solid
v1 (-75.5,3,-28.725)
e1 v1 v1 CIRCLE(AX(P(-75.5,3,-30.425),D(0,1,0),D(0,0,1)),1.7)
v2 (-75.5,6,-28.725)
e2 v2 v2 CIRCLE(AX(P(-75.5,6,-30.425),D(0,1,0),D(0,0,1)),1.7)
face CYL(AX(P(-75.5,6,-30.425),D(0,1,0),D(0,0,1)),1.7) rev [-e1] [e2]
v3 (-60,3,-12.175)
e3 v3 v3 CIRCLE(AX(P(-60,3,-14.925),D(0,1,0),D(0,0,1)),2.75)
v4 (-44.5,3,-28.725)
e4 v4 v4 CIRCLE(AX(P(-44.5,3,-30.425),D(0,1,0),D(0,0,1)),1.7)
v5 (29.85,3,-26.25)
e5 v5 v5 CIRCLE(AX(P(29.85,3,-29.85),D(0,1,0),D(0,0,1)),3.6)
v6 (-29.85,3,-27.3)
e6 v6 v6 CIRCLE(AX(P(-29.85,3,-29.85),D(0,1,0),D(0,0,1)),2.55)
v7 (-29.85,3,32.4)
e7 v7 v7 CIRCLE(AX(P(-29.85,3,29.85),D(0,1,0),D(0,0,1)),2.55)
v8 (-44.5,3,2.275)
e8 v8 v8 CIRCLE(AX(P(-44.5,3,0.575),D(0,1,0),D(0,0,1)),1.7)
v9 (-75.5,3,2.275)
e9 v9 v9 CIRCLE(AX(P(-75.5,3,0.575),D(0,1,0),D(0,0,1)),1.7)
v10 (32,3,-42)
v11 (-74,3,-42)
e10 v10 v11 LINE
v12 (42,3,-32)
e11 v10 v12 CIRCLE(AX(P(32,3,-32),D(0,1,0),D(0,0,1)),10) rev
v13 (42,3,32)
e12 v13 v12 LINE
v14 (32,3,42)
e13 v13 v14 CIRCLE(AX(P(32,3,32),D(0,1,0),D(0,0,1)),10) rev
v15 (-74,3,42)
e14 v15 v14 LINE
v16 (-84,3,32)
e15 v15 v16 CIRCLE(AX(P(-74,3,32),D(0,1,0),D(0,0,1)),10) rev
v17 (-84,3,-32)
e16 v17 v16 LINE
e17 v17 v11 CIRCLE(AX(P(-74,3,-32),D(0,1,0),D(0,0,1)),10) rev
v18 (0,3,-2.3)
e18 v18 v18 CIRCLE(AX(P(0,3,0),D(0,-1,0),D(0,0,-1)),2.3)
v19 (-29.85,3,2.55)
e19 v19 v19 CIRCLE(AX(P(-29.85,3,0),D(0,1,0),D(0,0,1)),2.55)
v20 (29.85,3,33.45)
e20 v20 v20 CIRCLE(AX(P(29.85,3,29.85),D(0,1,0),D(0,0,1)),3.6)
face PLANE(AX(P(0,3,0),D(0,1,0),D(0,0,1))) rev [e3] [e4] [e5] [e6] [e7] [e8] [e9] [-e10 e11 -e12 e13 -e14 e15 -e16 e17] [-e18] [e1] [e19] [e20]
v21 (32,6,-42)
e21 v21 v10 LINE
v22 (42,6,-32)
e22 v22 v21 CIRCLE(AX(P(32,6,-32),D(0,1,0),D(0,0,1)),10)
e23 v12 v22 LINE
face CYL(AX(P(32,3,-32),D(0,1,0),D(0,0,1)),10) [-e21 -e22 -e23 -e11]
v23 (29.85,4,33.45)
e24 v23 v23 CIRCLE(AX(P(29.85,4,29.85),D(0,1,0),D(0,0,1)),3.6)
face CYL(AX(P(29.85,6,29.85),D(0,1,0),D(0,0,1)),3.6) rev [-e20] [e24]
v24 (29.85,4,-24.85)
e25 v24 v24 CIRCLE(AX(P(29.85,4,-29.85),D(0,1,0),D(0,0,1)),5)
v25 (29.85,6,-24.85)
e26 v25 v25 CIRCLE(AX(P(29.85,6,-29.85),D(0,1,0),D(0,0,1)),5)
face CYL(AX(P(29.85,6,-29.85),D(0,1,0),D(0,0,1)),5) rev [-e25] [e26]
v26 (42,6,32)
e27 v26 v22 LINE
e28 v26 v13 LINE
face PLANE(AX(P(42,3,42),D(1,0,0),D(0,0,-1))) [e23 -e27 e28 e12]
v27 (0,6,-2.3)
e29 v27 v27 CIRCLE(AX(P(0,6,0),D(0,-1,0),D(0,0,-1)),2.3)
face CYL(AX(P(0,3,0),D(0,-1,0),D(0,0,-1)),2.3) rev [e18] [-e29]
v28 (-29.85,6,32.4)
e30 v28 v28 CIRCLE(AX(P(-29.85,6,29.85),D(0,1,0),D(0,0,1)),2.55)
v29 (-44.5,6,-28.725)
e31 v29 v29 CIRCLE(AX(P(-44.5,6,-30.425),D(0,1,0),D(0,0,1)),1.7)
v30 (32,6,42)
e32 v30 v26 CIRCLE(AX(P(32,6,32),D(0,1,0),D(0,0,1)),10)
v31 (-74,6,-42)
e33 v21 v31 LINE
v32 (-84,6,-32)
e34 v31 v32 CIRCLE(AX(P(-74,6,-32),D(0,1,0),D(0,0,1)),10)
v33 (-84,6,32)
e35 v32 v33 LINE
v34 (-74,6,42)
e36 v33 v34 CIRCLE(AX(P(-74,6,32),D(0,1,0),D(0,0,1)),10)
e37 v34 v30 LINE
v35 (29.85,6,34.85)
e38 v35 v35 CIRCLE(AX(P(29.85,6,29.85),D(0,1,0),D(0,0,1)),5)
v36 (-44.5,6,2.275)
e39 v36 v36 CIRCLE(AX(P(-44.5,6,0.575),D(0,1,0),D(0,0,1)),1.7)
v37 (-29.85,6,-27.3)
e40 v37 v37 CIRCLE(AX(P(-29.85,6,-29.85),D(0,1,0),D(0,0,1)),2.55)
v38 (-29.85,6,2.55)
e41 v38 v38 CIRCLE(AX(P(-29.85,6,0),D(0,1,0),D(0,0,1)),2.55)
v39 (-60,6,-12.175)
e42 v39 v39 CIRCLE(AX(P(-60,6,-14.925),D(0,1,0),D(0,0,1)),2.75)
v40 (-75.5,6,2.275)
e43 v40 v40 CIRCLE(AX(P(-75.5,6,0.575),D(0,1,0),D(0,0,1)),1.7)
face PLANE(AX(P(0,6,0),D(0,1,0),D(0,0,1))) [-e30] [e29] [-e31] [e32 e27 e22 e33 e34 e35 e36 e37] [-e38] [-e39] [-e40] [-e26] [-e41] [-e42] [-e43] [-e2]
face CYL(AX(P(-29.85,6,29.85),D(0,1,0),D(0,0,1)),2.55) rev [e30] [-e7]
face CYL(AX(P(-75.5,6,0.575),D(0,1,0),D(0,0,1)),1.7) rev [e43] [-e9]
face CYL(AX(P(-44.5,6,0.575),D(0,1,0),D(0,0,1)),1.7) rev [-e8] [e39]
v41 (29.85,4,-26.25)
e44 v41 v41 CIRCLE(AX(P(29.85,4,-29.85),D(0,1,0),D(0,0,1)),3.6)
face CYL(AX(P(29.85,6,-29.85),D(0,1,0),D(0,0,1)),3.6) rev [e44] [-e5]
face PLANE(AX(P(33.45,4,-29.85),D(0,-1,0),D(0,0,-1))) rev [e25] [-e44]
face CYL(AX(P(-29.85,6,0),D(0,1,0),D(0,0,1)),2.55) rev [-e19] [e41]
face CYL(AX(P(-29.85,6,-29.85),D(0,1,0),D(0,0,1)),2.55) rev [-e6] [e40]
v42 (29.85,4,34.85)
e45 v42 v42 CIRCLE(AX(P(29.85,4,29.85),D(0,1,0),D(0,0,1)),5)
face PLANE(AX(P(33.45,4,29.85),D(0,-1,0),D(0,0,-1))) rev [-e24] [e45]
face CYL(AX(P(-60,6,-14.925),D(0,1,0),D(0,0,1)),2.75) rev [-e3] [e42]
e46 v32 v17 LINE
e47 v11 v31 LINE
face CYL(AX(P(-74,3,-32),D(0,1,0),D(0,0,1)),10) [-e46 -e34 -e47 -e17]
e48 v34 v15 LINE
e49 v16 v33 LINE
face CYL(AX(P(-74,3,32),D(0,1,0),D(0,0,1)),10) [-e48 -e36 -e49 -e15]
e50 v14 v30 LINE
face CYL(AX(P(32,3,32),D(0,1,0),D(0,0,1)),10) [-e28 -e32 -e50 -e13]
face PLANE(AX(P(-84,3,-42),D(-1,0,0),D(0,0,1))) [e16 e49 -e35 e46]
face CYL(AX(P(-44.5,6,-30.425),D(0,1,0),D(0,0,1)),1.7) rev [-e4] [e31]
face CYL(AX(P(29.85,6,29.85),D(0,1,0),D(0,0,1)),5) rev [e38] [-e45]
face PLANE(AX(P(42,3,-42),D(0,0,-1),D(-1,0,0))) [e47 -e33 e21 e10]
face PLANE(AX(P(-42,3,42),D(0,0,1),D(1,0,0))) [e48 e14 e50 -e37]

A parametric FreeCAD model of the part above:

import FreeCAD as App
import Part
import Sketcher
Q = App.Units.Quantity


def edges_at(feature, points):
    """Names of the edges that pass closest to the given points."""
    edges = feature.Shape.Edges
    near = lambda p: min(range(len(edges)), key=lambda i: edges[i].distToShape(Part.Vertex(*p))[0])
    return sorted({f"Edge{near(p) + 1}" for p in points})


def add_polygon(sketch, points):
    """Adds a closed chain of lines whose ends are joined by coincident constraints."""
    first, n = sketch.GeometryCount, len(points)
    for a, b in zip(points, points[1:] + points[:1]):
        sketch.addGeometry(Part.LineSegment(App.Vector(*a, 0), App.Vector(*b, 0)), False)
    for i in range(n):
        sketch.addConstraint(Sketcher.Constraint("Coincident", first + i, 2, first + (i + 1) % n, 1))

doc = App.newDocument("Part")
body = doc.addObject("PartDesign::Body", "Body")

sketch1 = doc.addObject("Sketcher::SketchObject", "Sketch")
body.addObject(sketch1)
sketch1.AttachmentSupport = (doc.XZ_Plane, [""])
sketch1.MapMode = "FlatFace"
sketch1.AttachmentOffset = App.Placement(App.Vector(0, 0, -6), App.Rotation())
add_polygon(sketch1, [(42, -42), (-84, -42), (-84, 42), (42, 42)])
sketch1.addConstraint(Sketcher.Constraint("Horizontal", 0))
sketch1.addConstraint(Sketcher.Constraint("Vertical", 1))
sketch1.addConstraint(Sketcher.Constraint("Horizontal", 2))
sketch1.addConstraint(Sketcher.Constraint("Vertical", 3))
sketch1.addConstraint(Sketcher.Constraint("DistanceX", 0, 2, 0, 1, Q("126 mm")))
sketch1.addConstraint(Sketcher.Constraint("DistanceY", 1, 1, 1, 2, Q("84 mm")))
sketch1.addConstraint(Sketcher.Constraint("DistanceX", 0, 2, -1, 1, Q("84 mm")))
sketch1.addConstraint(Sketcher.Constraint("DistanceY", 0, 2, -1, 1, Q("42 mm")))
pad1 = doc.addObject("PartDesign::Pad", "Pad")
body.addObject(pad1)
pad1.Profile = sketch1
pad1.Length = 3

sketch2 = doc.addObject("Sketcher::SketchObject", "Sketch001")
body.addObject(sketch2)
sketch2.AttachmentSupport = (doc.XZ_Plane, [""])
sketch2.MapMode = "FlatFace"
sketch2.AttachmentOffset = App.Placement(App.Vector(0, 0, -3), App.Rotation())
sketch2.addGeometry(Part.Circle(App.Vector(0, 0, 0), App.Vector(0, 0, 1), 2.3), False)
sketch2.addConstraint(Sketcher.Constraint("Coincident", 0, 3, -1, 1))
sketch2.addConstraint(Sketcher.Constraint("Diameter", 0, Q("4.6 mm")))
doc.recompute()
hole = doc.addObject("PartDesign::Hole", "Hole")
body.addObject(hole)
hole.Profile = sketch2
hole.ThreadType = "None"
hole.Diameter = 4.6
hole.DepthType = "ThroughAll"

sketch3 = doc.addObject("Sketcher::SketchObject", "Sketch002")
body.addObject(sketch3)
sketch3.AttachmentSupport = (doc.XZ_Plane, [""])
sketch3.MapMode = "FlatFace"
sketch3.AttachmentOffset = App.Placement(App.Vector(0, 0, -6), App.Rotation())
sketch3.addGeometry(Part.Circle(App.Vector(29.85, -29.85, 0), App.Vector(0, 0, 1), 3.6), False)
sketch3.addGeometry(Part.Circle(App.Vector(29.85, 29.85, 0), App.Vector(0, 0, 1), 3.6), False)
sketch3.addConstraint(Sketcher.Constraint("Equal", 0, 1))
sketch3.addConstraint(Sketcher.Constraint("Symmetric", 0, 3, 1, 3, -1))
sketch3.addConstraint(Sketcher.Constraint("Diameter", 0, Q("7.2 mm")))
sketch3.addConstraint(Sketcher.Constraint("DistanceY", 0, 3, 1, 3, Q("59.7 mm")))
sketch3.addConstraint(Sketcher.Constraint("DistanceX", -1, 1, 0, 3, Q("29.85 mm")))
doc.recompute()
hole2 = doc.addObject("PartDesign::Hole", "Hole001")
body.addObject(hole2)
hole2.Profile = sketch3
hole2.ThreadType = "None"
hole2.Diameter = 7.2
hole2.DepthType = "ThroughAll"
hole2.HoleCutType = "Counterbore"
hole2.HoleCutDiameter = 10
hole2.HoleCutDepth = 2
hole2.Reversed = True

sketch4 = doc.addObject("Sketcher::SketchObject", "Sketch003")
body.addObject(sketch4)
sketch4.AttachmentSupport = (doc.XZ_Plane, [""])
sketch4.MapMode = "FlatFace"
sketch4.AttachmentOffset = App.Placement(App.Vector(0, 0, -6), App.Rotation())
sketch4.addGeometry(Part.Circle(App.Vector(-29.85, 29.85, 0), App.Vector(0, 0, 1), 2.55), False)
sketch4.addGeometry(Part.Circle(App.Vector(-29.85, -29.85, 0), App.Vector(0, 0, 1), 2.55), False)
sketch4.addGeometry(Part.Circle(App.Vector(-29.85, 0, 0), App.Vector(0, 0, 1), 2.55), False)
sketch4.addConstraint(Sketcher.Constraint("Equal", 0, 1))
sketch4.addConstraint(Sketcher.Constraint("Equal", 1, 2))
sketch4.addConstraint(Sketcher.Constraint("Symmetric", 0, 3, 1, 3, -1))
sketch4.addConstraint(Sketcher.Constraint("PointOnObject", 2, 3, -1))
sketch4.addConstraint(Sketcher.Constraint("Vertical", 1, 3, 2, 3))
sketch4.addConstraint(Sketcher.Constraint("Diameter", 0, Q("5.1 mm")))
sketch4.addConstraint(Sketcher.Constraint("DistanceY", 1, 3, 0, 3, Q("59.7 mm")))
sketch4.addConstraint(Sketcher.Constraint("DistanceX", 0, 3, -1, 1, Q("29.85 mm")))
doc.recompute()
hole3 = doc.addObject("PartDesign::Hole", "Hole002")
body.addObject(hole3)
hole3.Profile = sketch4
hole3.ThreadType = "None"
hole3.Diameter = 5.1
hole3.DepthType = "ThroughAll"
hole3.Reversed = True

sketch5 = doc.addObject("Sketcher::SketchObject", "Sketch004")
body.addObject(sketch5)
sketch5.AttachmentSupport = (doc.XZ_Plane, [""])
sketch5.MapMode = "FlatFace"
sketch5.AttachmentOffset = App.Placement(App.Vector(0, 0, -6), App.Rotation())
sketch5.addGeometry(Part.Circle(App.Vector(-75.5, -30.425, 0), App.Vector(0, 0, 1), 1.7), False)
sketch5.addGeometry(Part.Circle(App.Vector(-44.5, -30.425, 0), App.Vector(0, 0, 1), 1.7), False)
sketch5.addGeometry(Part.Circle(App.Vector(-44.5, 0.575, 0), App.Vector(0, 0, 1), 1.7), False)
sketch5.addGeometry(Part.Circle(App.Vector(-75.5, 0.575, 0), App.Vector(0, 0, 1), 1.7), False)
sketch5.addConstraint(Sketcher.Constraint("Equal", 0, 1))
sketch5.addConstraint(Sketcher.Constraint("Equal", 1, 2))
sketch5.addConstraint(Sketcher.Constraint("Equal", 2, 3))
sketch5.addConstraint(Sketcher.Constraint("Horizontal", 0, 3, 1, 3))
sketch5.addConstraint(Sketcher.Constraint("Horizontal", 2, 3, 3, 3))
sketch5.addConstraint(Sketcher.Constraint("Vertical", 1, 3, 2, 3))
sketch5.addConstraint(Sketcher.Constraint("Vertical", 0, 3, 3, 3))
sketch5.addConstraint(Sketcher.Constraint("Diameter", 0, Q("3.4 mm")))
sketch5.addConstraint(Sketcher.Constraint("DistanceX", 0, 3, 1, 3, Q("31 mm")))
sketch5.addConstraint(Sketcher.Constraint("DistanceY", 1, 3, 2, 3, Q("31 mm")))
sketch5.addConstraint(Sketcher.Constraint("DistanceX", 0, 3, -1, 1, Q("75.5 mm")))
sketch5.addConstraint(Sketcher.Constraint("DistanceY", 0, 3, -1, 1, Q("30.425 mm")))
doc.recompute()
hole4 = doc.addObject("PartDesign::Hole", "Hole003")
body.addObject(hole4)
hole4.Profile = sketch5
hole4.ThreadType = "None"
hole4.Diameter = 3.4
hole4.DepthType = "ThroughAll"
hole4.Reversed = True

sketch6 = doc.addObject("Sketcher::SketchObject", "Sketch005")
body.addObject(sketch6)
sketch6.AttachmentSupport = (doc.XZ_Plane, [""])
sketch6.MapMode = "FlatFace"
sketch6.AttachmentOffset = App.Placement(App.Vector(0, 0, -6), App.Rotation())
sketch6.addGeometry(Part.Circle(App.Vector(-60, -14.925, 0), App.Vector(0, 0, 1), 2.75), False)
sketch6.addConstraint(Sketcher.Constraint("Diameter", 0, Q("5.5 mm")))
sketch6.addConstraint(Sketcher.Constraint("DistanceX", 0, 3, -1, 1, Q("60 mm")))
sketch6.addConstraint(Sketcher.Constraint("DistanceY", 0, 3, -1, 1, Q("14.925 mm")))
doc.recompute()
hole5 = doc.addObject("PartDesign::Hole", "Hole004")
body.addObject(hole5)
hole5.Profile = sketch6
hole5.ThreadType = "None"
hole5.Diameter = 5.5
hole5.DepthType = "ThroughAll"
hole5.Reversed = True
doc.recompute()

fillet = doc.addObject("PartDesign::Fillet", "Fillet")
body.addObject(fillet)
fillet.Base = (hole5, edges_at(hole5, [
    (42, 4.5, -42),
    (42, 4.5, 42),
    (-84, 4.5, 42),
    (-84, 4.5, -42),
]))
fillet.Radius = 10

doc.recompute()
